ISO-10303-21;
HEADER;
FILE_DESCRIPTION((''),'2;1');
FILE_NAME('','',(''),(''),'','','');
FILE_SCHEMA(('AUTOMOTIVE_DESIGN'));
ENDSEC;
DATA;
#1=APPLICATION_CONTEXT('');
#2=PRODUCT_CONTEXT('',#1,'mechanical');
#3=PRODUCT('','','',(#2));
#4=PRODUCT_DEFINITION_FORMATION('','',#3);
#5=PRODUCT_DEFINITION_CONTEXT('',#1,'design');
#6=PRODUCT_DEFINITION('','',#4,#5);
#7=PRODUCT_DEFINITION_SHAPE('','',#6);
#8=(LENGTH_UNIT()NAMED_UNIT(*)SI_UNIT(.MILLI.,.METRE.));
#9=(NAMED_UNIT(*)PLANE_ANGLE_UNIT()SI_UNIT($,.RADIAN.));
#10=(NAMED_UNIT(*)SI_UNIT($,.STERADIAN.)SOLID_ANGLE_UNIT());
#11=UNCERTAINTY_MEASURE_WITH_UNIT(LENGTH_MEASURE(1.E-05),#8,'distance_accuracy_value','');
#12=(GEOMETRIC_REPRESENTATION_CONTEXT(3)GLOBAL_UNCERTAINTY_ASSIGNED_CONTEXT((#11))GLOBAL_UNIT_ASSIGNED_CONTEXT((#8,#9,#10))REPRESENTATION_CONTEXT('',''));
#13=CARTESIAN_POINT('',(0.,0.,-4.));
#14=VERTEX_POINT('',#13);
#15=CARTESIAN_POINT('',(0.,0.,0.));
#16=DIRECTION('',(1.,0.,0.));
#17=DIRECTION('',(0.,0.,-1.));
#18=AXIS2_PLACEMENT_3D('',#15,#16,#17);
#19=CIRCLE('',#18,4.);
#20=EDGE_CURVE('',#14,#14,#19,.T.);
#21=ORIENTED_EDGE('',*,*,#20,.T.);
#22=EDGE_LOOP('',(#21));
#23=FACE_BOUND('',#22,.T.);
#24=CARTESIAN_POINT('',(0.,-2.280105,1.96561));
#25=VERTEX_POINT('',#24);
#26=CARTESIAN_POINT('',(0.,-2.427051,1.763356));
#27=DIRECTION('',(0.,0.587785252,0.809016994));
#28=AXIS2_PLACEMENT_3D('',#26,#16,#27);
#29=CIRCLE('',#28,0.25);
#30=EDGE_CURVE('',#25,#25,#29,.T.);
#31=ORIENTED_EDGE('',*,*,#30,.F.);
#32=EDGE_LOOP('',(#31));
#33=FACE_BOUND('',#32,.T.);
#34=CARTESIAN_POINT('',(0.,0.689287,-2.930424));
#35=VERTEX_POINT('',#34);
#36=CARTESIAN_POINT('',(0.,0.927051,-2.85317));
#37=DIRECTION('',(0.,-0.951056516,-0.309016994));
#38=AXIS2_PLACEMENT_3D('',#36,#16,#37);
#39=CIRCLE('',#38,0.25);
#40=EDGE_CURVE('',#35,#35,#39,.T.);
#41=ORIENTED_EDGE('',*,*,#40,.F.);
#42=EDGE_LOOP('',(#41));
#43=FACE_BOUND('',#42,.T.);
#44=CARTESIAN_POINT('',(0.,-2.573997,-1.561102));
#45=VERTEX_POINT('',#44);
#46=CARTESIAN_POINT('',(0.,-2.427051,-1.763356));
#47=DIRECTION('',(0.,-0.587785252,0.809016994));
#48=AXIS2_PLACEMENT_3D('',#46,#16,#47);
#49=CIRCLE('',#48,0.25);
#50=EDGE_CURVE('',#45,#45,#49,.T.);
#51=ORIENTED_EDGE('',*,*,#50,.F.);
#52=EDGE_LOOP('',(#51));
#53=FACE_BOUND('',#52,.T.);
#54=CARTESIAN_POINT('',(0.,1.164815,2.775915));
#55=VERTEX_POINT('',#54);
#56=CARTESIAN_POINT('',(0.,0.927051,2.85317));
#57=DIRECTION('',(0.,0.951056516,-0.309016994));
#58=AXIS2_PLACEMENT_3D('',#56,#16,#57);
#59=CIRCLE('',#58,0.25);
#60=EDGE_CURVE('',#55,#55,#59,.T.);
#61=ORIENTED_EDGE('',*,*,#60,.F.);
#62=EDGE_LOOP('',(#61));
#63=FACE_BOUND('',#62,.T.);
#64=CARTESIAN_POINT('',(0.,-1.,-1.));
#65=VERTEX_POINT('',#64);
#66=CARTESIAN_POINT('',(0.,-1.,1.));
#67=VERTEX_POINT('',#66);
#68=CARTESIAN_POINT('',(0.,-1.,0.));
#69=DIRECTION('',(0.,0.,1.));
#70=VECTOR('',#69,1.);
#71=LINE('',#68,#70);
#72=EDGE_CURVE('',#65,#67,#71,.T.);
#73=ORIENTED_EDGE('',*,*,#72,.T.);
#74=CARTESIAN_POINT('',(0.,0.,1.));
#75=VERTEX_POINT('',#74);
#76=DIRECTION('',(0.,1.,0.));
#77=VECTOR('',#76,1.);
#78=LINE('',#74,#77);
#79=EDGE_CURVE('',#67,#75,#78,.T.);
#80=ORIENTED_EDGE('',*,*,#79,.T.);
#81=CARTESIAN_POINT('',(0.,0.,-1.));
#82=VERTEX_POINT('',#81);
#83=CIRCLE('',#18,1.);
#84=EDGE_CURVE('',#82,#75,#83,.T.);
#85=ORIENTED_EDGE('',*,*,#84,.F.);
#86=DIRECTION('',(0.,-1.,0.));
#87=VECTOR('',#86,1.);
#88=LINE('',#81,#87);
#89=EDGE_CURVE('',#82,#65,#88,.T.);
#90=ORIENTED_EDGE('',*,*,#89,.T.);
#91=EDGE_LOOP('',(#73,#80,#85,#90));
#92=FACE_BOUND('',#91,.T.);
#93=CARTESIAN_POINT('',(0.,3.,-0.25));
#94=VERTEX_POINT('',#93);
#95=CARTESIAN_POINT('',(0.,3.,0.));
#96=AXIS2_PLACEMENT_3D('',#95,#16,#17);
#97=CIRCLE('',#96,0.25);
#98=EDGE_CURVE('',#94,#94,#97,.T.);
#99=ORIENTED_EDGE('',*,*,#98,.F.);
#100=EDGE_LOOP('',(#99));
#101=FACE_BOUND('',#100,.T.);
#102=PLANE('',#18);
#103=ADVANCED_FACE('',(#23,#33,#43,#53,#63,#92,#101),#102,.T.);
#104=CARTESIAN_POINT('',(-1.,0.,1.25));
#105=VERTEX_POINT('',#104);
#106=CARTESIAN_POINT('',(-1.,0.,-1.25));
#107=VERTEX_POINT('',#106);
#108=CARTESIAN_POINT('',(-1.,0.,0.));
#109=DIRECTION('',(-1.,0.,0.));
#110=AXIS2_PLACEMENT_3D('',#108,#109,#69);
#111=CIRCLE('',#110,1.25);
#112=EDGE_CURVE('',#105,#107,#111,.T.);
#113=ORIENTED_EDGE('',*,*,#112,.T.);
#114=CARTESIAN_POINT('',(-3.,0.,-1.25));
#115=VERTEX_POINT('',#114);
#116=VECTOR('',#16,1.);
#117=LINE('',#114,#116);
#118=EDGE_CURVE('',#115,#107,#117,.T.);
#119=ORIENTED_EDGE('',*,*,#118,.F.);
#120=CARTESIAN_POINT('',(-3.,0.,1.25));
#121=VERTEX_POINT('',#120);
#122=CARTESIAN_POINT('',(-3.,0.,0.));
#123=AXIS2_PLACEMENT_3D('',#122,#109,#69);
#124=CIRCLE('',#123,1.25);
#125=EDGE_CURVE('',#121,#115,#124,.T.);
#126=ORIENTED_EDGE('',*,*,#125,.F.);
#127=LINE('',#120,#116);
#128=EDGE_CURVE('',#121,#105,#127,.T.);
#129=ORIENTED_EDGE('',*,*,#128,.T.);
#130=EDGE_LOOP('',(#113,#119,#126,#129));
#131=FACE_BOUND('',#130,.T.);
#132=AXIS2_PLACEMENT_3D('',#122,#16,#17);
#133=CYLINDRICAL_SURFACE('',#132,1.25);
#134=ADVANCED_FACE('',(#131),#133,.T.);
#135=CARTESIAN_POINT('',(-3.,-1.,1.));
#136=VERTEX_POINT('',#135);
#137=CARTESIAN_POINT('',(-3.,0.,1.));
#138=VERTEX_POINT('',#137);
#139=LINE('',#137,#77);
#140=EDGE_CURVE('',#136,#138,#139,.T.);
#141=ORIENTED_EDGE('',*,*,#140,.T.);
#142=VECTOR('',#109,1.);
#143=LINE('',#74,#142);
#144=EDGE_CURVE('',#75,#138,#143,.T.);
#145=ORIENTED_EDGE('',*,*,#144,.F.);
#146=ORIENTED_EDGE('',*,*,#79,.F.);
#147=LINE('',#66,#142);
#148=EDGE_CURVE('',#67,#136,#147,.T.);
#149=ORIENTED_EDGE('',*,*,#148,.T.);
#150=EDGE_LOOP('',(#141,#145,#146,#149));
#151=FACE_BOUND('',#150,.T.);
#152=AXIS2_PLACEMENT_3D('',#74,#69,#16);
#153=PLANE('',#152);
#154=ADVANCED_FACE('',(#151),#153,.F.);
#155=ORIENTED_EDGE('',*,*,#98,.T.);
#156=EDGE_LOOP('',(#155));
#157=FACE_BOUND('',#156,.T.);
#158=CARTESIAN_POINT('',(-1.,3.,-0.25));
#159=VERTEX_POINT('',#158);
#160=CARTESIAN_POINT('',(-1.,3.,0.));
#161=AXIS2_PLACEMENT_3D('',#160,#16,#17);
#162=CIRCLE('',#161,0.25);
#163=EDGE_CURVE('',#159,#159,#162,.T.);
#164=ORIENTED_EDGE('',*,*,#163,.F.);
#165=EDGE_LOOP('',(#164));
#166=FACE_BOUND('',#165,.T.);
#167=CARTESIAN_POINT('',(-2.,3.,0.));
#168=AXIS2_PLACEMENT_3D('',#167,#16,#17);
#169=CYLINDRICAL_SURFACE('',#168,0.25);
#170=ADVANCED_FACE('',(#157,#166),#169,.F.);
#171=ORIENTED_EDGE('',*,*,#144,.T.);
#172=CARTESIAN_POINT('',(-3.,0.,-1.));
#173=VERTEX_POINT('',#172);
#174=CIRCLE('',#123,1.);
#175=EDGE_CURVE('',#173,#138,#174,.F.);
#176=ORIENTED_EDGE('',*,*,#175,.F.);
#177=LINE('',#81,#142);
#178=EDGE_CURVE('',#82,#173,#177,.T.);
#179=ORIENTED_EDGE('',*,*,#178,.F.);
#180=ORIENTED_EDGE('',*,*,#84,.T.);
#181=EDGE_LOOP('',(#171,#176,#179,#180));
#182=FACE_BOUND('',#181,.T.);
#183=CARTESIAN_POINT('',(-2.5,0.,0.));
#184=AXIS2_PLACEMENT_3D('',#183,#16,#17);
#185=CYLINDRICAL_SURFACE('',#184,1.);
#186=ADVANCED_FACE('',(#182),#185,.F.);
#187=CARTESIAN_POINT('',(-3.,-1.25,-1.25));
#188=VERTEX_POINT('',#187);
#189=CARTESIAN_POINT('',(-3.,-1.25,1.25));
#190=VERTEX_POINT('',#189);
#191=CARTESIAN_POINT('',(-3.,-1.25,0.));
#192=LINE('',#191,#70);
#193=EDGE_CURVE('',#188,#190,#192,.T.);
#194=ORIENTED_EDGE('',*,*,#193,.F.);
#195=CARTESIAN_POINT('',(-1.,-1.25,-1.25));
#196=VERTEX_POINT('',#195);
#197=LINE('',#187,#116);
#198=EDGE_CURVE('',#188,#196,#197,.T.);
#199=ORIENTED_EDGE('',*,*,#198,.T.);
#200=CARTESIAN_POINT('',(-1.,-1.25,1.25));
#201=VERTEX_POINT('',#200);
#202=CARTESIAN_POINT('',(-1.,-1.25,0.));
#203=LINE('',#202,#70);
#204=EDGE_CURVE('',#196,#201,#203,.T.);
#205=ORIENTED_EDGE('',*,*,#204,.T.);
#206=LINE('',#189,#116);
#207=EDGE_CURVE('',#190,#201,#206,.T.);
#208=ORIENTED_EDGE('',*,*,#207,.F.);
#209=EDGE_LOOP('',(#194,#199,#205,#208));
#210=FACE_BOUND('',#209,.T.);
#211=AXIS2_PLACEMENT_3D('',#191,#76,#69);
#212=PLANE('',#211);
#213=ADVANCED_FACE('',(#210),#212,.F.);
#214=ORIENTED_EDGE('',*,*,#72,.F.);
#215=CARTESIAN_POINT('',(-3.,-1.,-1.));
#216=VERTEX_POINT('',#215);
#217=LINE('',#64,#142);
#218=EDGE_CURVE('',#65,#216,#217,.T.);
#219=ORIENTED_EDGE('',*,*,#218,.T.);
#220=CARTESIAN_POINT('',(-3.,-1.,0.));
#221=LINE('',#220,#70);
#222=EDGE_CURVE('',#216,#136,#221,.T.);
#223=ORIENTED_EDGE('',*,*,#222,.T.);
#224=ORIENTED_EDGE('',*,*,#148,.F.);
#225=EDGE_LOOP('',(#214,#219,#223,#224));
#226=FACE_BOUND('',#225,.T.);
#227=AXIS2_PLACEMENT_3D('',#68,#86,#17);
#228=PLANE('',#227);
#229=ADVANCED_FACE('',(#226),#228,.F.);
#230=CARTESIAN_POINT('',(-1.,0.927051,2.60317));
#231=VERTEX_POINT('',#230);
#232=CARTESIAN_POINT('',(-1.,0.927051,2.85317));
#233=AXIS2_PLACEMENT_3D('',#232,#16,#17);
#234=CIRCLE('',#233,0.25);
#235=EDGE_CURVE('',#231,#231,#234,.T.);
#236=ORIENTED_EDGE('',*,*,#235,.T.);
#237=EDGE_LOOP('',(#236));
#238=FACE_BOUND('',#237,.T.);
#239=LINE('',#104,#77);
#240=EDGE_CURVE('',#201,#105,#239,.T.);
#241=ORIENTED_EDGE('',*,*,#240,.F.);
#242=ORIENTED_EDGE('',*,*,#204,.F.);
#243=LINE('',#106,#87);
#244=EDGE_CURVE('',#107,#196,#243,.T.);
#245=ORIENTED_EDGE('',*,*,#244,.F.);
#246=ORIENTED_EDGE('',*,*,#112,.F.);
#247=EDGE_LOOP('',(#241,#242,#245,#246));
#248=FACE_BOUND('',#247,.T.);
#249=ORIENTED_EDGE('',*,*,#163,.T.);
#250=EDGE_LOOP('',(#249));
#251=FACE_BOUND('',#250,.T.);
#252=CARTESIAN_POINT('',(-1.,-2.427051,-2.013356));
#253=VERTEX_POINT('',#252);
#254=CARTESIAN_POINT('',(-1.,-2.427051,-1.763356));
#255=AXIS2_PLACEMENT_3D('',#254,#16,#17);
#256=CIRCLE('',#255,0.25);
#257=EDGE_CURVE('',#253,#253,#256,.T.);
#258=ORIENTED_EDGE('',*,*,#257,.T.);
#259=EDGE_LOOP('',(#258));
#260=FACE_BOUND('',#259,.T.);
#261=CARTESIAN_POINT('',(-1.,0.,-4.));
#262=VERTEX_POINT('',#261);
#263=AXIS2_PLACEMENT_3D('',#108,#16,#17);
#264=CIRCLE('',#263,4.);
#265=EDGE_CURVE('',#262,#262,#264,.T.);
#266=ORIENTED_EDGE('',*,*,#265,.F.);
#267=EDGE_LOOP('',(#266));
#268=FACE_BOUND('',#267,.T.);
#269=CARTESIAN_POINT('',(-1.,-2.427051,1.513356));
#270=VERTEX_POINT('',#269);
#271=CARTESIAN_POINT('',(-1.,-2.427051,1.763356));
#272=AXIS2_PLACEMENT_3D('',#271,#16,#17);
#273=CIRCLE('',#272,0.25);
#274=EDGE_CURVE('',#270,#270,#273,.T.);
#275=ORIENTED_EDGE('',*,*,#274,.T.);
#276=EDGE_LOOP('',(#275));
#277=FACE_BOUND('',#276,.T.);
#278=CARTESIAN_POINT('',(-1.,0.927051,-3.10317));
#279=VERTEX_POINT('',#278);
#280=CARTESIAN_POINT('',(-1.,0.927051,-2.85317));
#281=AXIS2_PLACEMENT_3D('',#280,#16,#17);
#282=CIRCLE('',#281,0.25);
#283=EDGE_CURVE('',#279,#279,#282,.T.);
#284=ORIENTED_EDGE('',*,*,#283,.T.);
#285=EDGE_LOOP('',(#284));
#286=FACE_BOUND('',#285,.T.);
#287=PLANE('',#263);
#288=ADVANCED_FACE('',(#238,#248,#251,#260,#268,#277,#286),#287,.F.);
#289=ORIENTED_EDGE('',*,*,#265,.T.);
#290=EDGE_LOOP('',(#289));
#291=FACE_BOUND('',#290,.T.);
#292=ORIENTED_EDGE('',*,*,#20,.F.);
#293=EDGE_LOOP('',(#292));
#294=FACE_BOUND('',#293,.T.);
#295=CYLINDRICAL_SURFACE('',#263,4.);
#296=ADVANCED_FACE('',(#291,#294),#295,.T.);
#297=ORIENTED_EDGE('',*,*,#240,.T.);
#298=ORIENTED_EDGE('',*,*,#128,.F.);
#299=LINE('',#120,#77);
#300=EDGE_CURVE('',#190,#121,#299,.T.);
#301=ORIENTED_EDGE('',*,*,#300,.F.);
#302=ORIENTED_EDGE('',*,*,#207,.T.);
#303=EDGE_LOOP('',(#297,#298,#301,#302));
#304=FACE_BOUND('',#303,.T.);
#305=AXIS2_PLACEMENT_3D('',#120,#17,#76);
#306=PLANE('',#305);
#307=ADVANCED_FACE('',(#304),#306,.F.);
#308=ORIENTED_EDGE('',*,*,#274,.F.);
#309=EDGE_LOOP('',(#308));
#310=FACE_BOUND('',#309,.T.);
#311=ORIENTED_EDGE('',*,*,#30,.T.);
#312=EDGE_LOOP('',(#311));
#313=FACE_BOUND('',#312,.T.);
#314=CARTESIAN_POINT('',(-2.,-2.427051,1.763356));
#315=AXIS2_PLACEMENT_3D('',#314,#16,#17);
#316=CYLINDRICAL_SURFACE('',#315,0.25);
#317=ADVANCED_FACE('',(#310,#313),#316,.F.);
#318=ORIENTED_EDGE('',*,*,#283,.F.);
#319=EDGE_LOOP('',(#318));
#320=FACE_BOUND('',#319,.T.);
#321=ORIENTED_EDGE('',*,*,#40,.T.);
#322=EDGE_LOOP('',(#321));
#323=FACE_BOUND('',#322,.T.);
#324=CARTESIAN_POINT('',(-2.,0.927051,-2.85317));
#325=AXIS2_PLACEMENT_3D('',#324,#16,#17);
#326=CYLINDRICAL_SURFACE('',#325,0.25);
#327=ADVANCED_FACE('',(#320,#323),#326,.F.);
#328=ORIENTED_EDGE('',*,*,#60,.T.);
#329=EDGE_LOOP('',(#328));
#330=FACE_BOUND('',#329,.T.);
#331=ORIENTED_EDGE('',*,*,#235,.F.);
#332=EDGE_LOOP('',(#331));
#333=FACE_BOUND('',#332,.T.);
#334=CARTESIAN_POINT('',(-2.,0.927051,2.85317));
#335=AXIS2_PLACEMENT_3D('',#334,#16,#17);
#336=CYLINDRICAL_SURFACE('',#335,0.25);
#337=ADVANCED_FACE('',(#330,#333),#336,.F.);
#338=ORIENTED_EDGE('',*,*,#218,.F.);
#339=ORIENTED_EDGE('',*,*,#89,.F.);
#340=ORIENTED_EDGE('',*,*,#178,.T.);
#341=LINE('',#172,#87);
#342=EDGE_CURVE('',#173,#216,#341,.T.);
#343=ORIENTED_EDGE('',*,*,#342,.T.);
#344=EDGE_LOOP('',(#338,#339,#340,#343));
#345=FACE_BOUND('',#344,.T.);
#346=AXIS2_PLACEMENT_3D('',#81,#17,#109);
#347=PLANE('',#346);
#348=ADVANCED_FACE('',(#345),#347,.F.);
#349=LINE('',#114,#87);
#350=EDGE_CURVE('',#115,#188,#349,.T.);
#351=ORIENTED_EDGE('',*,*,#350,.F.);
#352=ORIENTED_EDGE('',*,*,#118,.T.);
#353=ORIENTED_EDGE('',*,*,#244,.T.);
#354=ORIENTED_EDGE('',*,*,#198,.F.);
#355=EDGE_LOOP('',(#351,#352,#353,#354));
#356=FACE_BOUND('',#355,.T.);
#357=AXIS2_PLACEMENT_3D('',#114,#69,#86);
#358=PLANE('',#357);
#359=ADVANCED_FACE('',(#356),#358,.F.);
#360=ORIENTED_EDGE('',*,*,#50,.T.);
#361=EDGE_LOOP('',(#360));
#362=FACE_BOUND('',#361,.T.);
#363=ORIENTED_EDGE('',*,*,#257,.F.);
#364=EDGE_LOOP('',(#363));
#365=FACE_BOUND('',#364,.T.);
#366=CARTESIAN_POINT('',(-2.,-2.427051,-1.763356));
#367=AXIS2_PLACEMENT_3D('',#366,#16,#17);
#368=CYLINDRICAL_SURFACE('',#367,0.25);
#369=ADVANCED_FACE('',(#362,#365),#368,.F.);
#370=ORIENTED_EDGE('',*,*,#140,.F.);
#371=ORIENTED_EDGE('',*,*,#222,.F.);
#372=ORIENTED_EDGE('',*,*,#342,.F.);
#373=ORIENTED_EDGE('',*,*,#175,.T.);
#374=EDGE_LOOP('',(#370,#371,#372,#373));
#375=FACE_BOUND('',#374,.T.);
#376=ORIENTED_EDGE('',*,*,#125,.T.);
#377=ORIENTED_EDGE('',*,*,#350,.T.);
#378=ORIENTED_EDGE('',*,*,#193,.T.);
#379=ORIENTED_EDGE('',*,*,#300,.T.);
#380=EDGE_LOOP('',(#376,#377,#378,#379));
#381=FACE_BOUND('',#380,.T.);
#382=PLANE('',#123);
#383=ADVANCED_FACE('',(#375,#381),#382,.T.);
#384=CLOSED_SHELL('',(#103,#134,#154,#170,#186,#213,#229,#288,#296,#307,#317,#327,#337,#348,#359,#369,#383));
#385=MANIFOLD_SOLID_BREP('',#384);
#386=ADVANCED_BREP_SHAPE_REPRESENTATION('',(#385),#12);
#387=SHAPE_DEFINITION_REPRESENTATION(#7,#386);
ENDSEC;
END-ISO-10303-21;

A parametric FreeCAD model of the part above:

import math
import FreeCAD as App
import Part
import Sketcher
Q = App.Units.Quantity

doc = App.newDocument("Part")
body = doc.addObject("PartDesign::Body", "Body")

# Sketch on YZ plane
sketch1 = body.newObject("Sketcher::SketchObject", "Sketch")
sketch1.AttachmentSupport = (doc.getObject("YZ_Plane"), [""])
sketch1.MapMode = "FlatFace"
sketch1.addGeometry(Part.Circle(App.Vector(0, 0, 0), App.Vector(0, 0, 1), 4), False)
sketch1.addConstraint(Sketcher.Constraint("Coincident", 0, 3, -1, 1))
sketch1.addConstraint(Sketcher.Constraint("Diameter", 0, Q("8 mm")))
pad1 = body.newObject("PartDesign::Pad", "Pad")
pad1.Profile = sketch1
pad1.Length = 1
pad1.Reversed = True

# Sketch on YZ plane
sketch2 = body.newObject("Sketcher::SketchObject", "Sketch001")
sketch2.AttachmentSupport = (doc.getObject("YZ_Plane"), [""])
sketch2.MapMode = "FlatFace"
sketch2.addGeometry(Part.Circle(App.Vector(0, 0, 0), App.Vector(0, 0, 1), 1), False)
sketch2.addConstraint(Sketcher.Constraint("Coincident", 0, 3, -1, 1))
sketch2.addConstraint(Sketcher.Constraint("Diameter", 0, Q("2 mm")))
pocket1 = body.newObject("PartDesign::Pocket", "Pocket")
pocket1.Profile = sketch2
pocket1.Length = 2.5

# Sketch on YZ plane
sketch3 = body.newObject("Sketcher::SketchObject", "Sketch002")
sketch3.AttachmentSupport = (doc.getObject("YZ_Plane"), [""])
sketch3.MapMode = "FlatFace"
sketch3.addGeometry(Part.Circle(App.Vector(3, 0, 0), App.Vector(0, 0, 1), 0.25), False)
sketch3.addConstraint(Sketcher.Constraint("PointOnObject", 0, 3, -1))
sketch3.addConstraint(Sketcher.Constraint("Diameter", 0, Q("0.5 mm")))
sketch3.addConstraint(Sketcher.Constraint("DistanceX", -1, 1, 0, 3, Q("3 mm")))
pocket2 = body.newObject("PartDesign::Pocket", "Pocket001")
pocket2.Profile = sketch3
pocket2.Length = 2
doc.recompute()

polarpattern = body.newObject("PartDesign::PolarPattern", "PolarPattern")
polarpattern.Originals = [pocket2]
polarpattern.Axis = (doc.getObject("X_Axis"), [""])
polarpattern.Angle = 360
polarpattern.Occurrences = 5
body.Tip = polarpattern

# Sketch on YZ plane
sketch4 = body.newObject("Sketcher::SketchObject", "Sketch003")
sketch4.AttachmentSupport = (doc.getObject("YZ_Plane"), [""])
sketch4.MapMode = "FlatFace"
sketch4.AttachmentOffset = App.Placement(App.Vector(0, 0, -1), App.Rotation())
sketch4.addGeometry(Part.LineSegment(App.Vector(0, -1, 0), App.Vector(-1, -1, 0)), False)
sketch4.addGeometry(Part.LineSegment(App.Vector(-1, -1, 0), App.Vector(-1, 0, 0)), False)
sketch4.addGeometry(Part.ArcOfCircle(Part.Circle(App.Vector(0, 0, 0), App.Vector(0, 0, 1), 1), math.radians(-180), math.radians(-90)), False)
sketch4.addGeometry(Part.ArcOfCircle(Part.Circle(App.Vector(0, 0, 0), App.Vector(0, 0, 1), 1), math.radians(90), math.radians(180)), False)
sketch4.addGeometry(Part.LineSegment(App.Vector(-1, 0, 0), App.Vector(-1, 1, 0)), False)
sketch4.addGeometry(Part.LineSegment(App.Vector(-1, 1, 0), App.Vector(0, 1, 0)), False)
sketch4.addConstraint(Sketcher.Constraint("Coincident", 0, 2, 1, 1))
sketch4.addConstraint(Sketcher.Constraint("Tangent", 1, 2, 2, 1))
sketch4.addConstraint(Sketcher.Constraint("Tangent", 2, 2, 0, 1))
sketch4.addConstraint(Sketcher.Constraint("Tangent", 3, 2, 4, 1))
sketch4.addConstraint(Sketcher.Constraint("Coincident", 4, 2, 5, 1))
sketch4.addConstraint(Sketcher.Constraint("Tangent", 5, 2, 3, 1))
sketch4.addConstraint(Sketcher.Constraint("Horizontal", 0))
sketch4.addConstraint(Sketcher.Constraint("Vertical", 1))
sketch4.addConstraint(Sketcher.Constraint("Vertical", 4))
sketch4.addConstraint(Sketcher.Constraint("Horizontal", 5))
sketch4.addConstraint(Sketcher.Constraint("Coincident", 2, 3, -1, 1))
sketch4.addConstraint(Sketcher.Constraint("Coincident", 3, 3, -1, 1))
sketch4.addConstraint(Sketcher.Constraint("Equal", 2, 3))
sketch4.addConstraint(Sketcher.Constraint("Radius", 2, Q("1 mm")))
pocket3 = body.newObject("PartDesign::Pocket", "Pocket002")
pocket3.Profile = sketch4
pocket3.Type = "ThroughAll"
pocket3.Reversed = True

# Sketch on YZ plane
sketch5 = body.newObject("Sketcher::SketchObject", "Sketch004")
sketch5.AttachmentSupport = (doc.getObject("YZ_Plane"), [""])
sketch5.MapMode = "FlatFace"
sketch5.AttachmentOffset = App.Placement(App.Vector(0, 0, -1), App.Rotation())
sketch5.addGeometry(Part.LineSegment(App.Vector(-1.2, -1.2, 0), App.Vector(-1.2, 1.2, 0)), False)
sketch5.addGeometry(Part.LineSegment(App.Vector(-1.2, 1.2, 0), App.Vector(0, 1.2, 0)), False)
sketch5.addGeometry(Part.ArcOfCircle(Part.Circle(App.Vector(0, 0, 0), App.Vector(0, 0, 1), 1.2), math.radians(-90), math.radians(90)), False)
sketch5.addGeometry(Part.LineSegment(App.Vector(0, -1.2, 0), App.Vector(-1.2, -1.2, 0)), False)
sketch5.addGeometry(Part.LineSegment(App.Vector(0, 1, 0), App.Vector(-1, 1, 0)), False)
sketch5.addGeometry(Part.LineSegment(App.Vector(-1, 1, 0), App.Vector(-1, -1, 0)), False)
sketch5.addGeometry(Part.LineSegment(App.Vector(-1, -1, 0), App.Vector(0, -1, 0)), False)
sketch5.addGeometry(Part.ArcOfCircle(Part.Circle(App.Vector(0, 0, 0), App.Vector(0, 0, 1), 1), math.radians(-90), math.radians(90)), False)
sketch5.addConstraint(Sketcher.Constraint("Coincident", 0, 2, 1, 1))
sketch5.addConstraint(Sketcher.Constraint("Tangent", 1, 2, 2, 2))
sketch5.addConstraint(Sketcher.Constraint("Tangent", 2, 1, 3, 1))
sketch5.addConstraint(Sketcher.Constraint("Coincident", 3, 2, 0, 1))
sketch5.addConstraint(Sketcher.Constraint("Coincident", 4, 2, 5, 1))
sketch5.addConstraint(Sketcher.Constraint("Coincident", 5, 2, 6, 1))
sketch5.addConstraint(Sketcher.Constraint("Tangent", 6, 2, 7, 1))
sketch5.addConstraint(Sketcher.Constraint("Tangent", 7, 2, 4, 1))
sketch5.addConstraint(Sketcher.Constraint("Vertical", 0))
sketch5.addConstraint(Sketcher.Constraint("Horizontal", 1))
sketch5.addConstraint(Sketcher.Constraint("Horizontal", 3))
sketch5.addConstraint(Sketcher.Constraint("Horizontal", 4))
sketch5.addConstraint(Sketcher.Constraint("Vertical", 5))
sketch5.addConstraint(Sketcher.Constraint("Horizontal", 6))
sketch5.addConstraint(Sketcher.Constraint("Coincident", 2, 3, -1, 1))
sketch5.addConstraint(Sketcher.Constraint("Coincident", 7, 3, -1, 1))
sketch5.addConstraint(Sketcher.Constraint("Radius", 7, Q("1 mm")))
sketch5.addConstraint(Sketcher.Constraint("DistanceX", 4, 2, 4, 1, Q("1 mm")))
sketch5.addConstraint(Sketcher.Constraint("Radius", 2, Q("1.25 mm")))
sketch5.addConstraint(Sketcher.Constraint("DistanceX", 1, 1, 1, 2, Q("1.25 mm")))
pad2 = body.newObject("PartDesign::Pad", "Pad001")
pad2.Profile = sketch5
pad2.Length = 2
pad2.Reversed = True

doc.recompute()
